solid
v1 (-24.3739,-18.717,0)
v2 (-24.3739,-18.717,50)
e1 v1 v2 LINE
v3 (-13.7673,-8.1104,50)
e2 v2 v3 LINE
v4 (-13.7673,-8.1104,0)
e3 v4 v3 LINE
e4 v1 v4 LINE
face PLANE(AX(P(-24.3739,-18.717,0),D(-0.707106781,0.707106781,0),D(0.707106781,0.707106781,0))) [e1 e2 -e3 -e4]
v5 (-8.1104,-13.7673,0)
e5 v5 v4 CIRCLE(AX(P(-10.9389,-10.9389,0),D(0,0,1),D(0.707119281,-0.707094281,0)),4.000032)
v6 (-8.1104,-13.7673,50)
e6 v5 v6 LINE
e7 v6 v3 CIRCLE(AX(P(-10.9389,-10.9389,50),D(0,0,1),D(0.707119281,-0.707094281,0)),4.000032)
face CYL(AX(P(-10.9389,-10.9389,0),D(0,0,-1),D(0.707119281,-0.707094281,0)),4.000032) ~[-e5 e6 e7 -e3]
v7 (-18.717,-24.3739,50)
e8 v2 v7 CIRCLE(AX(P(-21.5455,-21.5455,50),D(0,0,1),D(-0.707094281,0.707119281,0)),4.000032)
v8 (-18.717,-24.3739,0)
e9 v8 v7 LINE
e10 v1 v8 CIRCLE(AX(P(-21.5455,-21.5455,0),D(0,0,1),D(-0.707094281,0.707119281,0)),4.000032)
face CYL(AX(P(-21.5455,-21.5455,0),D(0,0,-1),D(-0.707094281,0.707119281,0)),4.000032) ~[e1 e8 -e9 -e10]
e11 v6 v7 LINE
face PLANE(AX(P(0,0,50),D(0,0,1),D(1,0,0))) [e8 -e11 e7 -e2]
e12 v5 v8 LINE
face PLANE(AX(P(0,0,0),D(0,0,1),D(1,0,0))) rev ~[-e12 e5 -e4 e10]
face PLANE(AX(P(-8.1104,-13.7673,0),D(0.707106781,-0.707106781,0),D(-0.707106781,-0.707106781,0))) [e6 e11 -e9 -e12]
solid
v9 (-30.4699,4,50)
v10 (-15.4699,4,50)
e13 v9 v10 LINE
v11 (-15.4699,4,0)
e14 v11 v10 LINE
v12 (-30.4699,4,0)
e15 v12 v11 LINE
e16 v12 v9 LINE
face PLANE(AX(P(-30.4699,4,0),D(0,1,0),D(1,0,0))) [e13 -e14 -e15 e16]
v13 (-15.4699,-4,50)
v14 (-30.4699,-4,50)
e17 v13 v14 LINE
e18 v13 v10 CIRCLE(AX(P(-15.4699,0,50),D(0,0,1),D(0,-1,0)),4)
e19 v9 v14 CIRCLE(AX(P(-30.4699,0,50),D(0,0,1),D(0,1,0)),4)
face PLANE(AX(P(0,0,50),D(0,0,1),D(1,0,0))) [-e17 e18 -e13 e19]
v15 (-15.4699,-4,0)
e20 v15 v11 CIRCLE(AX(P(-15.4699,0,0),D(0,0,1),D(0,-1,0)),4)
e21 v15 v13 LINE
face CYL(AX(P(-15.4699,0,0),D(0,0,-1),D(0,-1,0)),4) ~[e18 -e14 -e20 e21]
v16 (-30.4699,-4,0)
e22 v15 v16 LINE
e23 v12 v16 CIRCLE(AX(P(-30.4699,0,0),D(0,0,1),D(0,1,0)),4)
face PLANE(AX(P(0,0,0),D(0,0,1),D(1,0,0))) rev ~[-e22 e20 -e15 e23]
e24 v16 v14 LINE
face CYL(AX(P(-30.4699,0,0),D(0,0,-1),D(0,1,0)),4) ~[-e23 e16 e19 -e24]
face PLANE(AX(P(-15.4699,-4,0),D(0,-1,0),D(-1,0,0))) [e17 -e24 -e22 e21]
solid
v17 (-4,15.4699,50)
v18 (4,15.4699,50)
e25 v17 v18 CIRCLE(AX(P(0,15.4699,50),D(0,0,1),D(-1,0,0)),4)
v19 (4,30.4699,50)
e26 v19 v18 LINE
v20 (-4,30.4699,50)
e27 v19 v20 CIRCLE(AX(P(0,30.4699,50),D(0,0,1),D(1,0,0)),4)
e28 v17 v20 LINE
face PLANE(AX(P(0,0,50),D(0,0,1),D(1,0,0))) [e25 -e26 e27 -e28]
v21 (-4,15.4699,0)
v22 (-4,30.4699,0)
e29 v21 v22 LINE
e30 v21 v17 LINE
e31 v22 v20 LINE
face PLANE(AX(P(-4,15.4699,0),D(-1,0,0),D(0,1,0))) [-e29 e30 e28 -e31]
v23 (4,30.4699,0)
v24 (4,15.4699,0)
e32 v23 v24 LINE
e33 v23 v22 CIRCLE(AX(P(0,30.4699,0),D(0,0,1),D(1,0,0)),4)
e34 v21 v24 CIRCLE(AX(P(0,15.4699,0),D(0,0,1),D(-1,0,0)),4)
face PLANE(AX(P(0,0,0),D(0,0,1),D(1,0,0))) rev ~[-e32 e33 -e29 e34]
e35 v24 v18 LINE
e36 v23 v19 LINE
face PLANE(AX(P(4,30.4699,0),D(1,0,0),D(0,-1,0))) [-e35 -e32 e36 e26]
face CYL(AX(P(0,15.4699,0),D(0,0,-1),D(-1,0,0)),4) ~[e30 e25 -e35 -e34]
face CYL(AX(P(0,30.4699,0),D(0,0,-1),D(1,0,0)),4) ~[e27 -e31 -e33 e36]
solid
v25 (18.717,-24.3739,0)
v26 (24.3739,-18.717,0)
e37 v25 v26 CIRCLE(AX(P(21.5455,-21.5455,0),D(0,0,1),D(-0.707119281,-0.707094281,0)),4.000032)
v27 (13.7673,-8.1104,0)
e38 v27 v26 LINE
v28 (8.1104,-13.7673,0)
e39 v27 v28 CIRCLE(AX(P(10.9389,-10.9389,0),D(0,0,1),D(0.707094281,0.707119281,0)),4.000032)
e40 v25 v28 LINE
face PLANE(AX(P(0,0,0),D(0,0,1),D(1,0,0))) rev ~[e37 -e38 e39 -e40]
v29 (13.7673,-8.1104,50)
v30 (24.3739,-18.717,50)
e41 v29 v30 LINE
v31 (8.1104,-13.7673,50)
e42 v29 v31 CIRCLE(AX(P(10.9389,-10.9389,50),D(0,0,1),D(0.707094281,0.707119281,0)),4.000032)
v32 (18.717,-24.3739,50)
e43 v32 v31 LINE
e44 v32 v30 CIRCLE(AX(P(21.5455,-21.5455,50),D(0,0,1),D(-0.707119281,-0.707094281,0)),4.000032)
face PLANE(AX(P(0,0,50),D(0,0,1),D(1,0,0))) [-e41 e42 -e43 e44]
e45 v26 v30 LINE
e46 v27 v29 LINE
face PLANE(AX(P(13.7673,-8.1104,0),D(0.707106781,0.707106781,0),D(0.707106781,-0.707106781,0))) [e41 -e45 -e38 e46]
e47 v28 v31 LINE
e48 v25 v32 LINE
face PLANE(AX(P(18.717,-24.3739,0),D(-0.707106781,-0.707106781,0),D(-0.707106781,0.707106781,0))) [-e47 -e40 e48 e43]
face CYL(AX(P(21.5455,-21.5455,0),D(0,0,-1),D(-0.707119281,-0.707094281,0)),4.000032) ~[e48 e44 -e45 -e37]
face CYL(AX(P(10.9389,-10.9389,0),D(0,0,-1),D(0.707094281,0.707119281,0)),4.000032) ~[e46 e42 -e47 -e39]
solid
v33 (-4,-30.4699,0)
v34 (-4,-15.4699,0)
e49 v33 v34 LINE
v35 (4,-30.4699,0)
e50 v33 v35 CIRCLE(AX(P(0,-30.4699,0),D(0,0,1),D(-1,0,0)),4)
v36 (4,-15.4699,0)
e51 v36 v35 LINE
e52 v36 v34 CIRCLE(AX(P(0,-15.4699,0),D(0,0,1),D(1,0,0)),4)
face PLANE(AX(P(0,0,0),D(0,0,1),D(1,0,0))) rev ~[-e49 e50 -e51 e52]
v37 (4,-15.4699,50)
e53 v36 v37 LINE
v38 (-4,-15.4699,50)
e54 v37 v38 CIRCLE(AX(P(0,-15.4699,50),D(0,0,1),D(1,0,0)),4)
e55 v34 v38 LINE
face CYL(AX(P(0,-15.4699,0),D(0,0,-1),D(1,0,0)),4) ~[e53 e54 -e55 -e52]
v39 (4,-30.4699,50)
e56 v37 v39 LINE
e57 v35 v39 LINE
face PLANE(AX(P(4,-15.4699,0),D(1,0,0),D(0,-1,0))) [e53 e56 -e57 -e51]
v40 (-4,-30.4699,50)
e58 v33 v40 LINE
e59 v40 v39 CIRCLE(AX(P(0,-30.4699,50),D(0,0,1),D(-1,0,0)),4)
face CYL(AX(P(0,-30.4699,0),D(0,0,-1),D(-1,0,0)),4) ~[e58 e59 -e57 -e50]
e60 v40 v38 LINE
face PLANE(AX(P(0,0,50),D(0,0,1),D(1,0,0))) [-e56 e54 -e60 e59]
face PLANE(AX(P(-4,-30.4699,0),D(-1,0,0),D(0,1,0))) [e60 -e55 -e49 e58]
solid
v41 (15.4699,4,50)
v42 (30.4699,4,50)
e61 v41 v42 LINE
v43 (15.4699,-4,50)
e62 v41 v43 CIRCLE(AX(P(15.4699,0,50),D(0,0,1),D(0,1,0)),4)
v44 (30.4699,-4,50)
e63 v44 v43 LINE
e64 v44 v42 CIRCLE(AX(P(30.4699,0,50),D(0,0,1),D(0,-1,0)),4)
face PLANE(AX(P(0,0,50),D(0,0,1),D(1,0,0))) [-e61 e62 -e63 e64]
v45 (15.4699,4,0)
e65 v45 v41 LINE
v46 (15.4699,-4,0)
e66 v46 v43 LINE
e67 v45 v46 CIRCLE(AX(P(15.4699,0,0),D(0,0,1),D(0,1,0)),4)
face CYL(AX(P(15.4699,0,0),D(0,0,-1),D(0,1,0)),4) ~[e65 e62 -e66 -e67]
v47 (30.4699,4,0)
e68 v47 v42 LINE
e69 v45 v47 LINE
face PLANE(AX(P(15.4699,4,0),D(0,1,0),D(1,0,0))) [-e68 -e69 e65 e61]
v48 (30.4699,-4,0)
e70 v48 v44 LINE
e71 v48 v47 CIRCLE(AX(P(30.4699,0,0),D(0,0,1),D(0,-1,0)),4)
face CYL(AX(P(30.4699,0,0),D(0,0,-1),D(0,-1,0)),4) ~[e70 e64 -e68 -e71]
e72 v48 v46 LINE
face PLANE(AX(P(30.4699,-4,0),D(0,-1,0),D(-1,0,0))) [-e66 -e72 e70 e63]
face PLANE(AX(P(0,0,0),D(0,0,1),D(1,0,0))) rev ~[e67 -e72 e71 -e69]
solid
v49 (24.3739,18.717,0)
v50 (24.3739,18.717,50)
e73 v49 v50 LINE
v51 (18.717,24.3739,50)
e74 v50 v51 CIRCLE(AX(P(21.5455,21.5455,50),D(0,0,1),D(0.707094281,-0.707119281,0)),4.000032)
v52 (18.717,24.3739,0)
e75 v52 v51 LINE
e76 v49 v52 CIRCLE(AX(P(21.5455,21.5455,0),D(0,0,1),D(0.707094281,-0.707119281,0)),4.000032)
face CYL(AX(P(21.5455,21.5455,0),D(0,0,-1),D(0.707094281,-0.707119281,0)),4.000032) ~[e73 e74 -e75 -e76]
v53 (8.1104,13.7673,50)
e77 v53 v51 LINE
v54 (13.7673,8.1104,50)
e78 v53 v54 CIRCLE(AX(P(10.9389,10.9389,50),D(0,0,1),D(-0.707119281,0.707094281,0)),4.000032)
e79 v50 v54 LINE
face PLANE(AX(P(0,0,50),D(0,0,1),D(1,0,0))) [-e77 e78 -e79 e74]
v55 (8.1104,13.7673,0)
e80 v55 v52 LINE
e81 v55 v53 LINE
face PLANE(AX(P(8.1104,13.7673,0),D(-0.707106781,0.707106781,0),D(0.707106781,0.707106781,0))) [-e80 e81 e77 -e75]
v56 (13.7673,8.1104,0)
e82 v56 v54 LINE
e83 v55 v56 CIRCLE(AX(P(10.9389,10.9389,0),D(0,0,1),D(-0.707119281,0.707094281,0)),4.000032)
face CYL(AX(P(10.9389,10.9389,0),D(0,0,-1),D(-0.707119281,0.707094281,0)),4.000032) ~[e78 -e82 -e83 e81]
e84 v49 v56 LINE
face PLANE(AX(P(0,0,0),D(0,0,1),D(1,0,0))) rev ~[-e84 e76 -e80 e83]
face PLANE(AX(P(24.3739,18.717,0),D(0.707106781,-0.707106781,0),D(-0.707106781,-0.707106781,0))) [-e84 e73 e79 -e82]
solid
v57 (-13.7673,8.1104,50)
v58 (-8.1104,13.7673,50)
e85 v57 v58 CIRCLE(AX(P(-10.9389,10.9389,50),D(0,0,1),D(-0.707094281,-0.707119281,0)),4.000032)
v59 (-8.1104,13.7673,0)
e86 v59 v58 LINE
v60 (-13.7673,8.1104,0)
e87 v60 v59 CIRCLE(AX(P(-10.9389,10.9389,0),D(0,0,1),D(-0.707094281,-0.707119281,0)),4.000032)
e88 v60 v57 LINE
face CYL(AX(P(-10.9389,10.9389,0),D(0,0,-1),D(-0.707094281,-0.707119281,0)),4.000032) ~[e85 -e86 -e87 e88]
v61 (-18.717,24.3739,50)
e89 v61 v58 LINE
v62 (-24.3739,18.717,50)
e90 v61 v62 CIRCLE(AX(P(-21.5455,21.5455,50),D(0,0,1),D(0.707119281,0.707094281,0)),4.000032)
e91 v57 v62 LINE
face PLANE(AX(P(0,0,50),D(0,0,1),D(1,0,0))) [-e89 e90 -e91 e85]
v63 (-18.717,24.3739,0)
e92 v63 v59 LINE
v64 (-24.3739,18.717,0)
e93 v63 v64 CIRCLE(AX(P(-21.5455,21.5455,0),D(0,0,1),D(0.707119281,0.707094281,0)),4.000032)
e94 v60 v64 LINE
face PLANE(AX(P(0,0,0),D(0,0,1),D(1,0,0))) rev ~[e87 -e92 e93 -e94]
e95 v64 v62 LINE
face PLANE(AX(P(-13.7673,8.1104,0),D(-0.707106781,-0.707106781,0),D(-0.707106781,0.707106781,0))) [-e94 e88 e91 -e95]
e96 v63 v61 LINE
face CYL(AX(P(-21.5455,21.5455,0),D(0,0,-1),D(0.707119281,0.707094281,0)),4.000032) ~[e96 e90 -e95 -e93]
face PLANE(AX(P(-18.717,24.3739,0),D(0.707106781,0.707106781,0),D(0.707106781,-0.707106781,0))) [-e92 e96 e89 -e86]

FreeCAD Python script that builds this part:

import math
import FreeCAD as App
import Part
import Sketcher
from FreeCAD import Vector
Q = App.Units.Quantity

doc = App.newDocument("Part")
body = doc.addObject("PartDesign::Body", "Body")
body.AllowCompound = True

# Sketch on XY plane
sketch1 = doc.addObject("Sketcher::SketchObject", "Sketch")
body.addObject(sketch1)
sketch1.AttachmentSupport = (doc.XY_Plane, [""])
sketch1.MapMode = "FlatFace"
sketch1.addGeometry(Part.LineSegment(Vector(4, 15.5, 0), Vector(4, 30.5, 0)), False)
sketch1.addGeometry(Part.ArcOfCircle(Part.Circle(Vector(0, 30.5, 0), Vector(0, 0, 1), 4), math.radians(0), math.radians(180)), False)
sketch1.addGeometry(Part.LineSegment(Vector(-4, 30.5, 0), Vector(-4, 15.5, 0)), False)
sketch1.addGeometry(Part.ArcOfCircle(Part.Circle(Vector(0, 15.5, 0), Vector(0, 0, 1), 4), math.radians(180), math.radians(360)), False)
sketch1.addGeometry(Part.LineSegment(Vector(-8.1, 13.8, 0), Vector(-18.7, 24.4, 0)), False)
sketch1.addGeometry(Part.ArcOfCircle(Part.Circle(Vector(-21.5, 21.5, 0), Vector(0, 0, 1), 4), math.radians(45), math.radians(225)), False)
sketch1.addGeometry(Part.LineSegment(Vector(-24.4, 18.7, 0), Vector(-13.8, 8.1, 0)), False)
sketch1.addGeometry(Part.ArcOfCircle(Part.Circle(Vector(-10.9, 10.9, 0), Vector(0, 0, 1), 4), math.radians(-135), math.radians(45)), False)
sketch1.addGeometry(Part.LineSegment(Vector(-15.5, 4, 0), Vector(-30.5, 4, 0)), False)
sketch1.addGeometry(Part.ArcOfCircle(Part.Circle(Vector(-30.5, 0, 0), Vector(0, 0, 1), 4), math.radians(90), math.radians(270)), False)
sketch1.addGeometry(Part.LineSegment(Vector(-30.5, -4, 0), Vector(-15.5, -4, 0)), False)
sketch1.addGeometry(Part.ArcOfCircle(Part.Circle(Vector(-15.5, 0, 0), Vector(0, 0, 1), 4), math.radians(-90), math.radians(90)), False)
sketch1.addGeometry(Part.LineSegment(Vector(-13.8, -8.1, 0), Vector(-24.4, -18.7, 0)), False)
sketch1.addGeometry(Part.ArcOfCircle(Part.Circle(Vector(-21.5, -21.5, 0), Vector(0, 0, 1), 4), math.radians(135), math.radians(315)), False)
sketch1.addGeometry(Part.LineSegment(Vector(-18.7, -24.4, 0), Vector(-8.1, -13.8, 0)), False)
sketch1.addGeometry(Part.ArcOfCircle(Part.Circle(Vector(-10.9, -10.9, 0), Vector(0, 0, 1), 4), math.radians(-45), math.radians(135)), False)
sketch1.addGeometry(Part.LineSegment(Vector(-4, -15.5, 0), Vector(-4, -30.5, 0)), False)
sketch1.addGeometry(Part.ArcOfCircle(Part.Circle(Vector(0, -30.5, 0), Vector(0, 0, 1), 4), math.radians(180), math.radians(360)), False)
sketch1.addGeometry(Part.LineSegment(Vector(4, -30.5, 0), Vector(4, -15.5, 0)), False)
sketch1.addGeometry(Part.ArcOfCircle(Part.Circle(Vector(0, -15.5, 0), Vector(0, 0, 1), 4), math.radians(0), math.radians(180)), False)
sketch1.addGeometry(Part.LineSegment(Vector(8.1, -13.8, 0), Vector(18.7, -24.4, 0)), False)
sketch1.addGeometry(Part.ArcOfCircle(Part.Circle(Vector(21.5, -21.5, 0), Vector(0, 0, 1), 4), math.radians(-135), math.radians(45)), False)
sketch1.addGeometry(Part.LineSegment(Vector(24.4, -18.7, 0), Vector(13.8, -8.1, 0)), False)
sketch1.addGeometry(Part.ArcOfCircle(Part.Circle(Vector(10.9, -10.9, 0), Vector(0, 0, 1), 4), math.radians(45), math.radians(225)), False)
sketch1.addGeometry(Part.LineSegment(Vector(15.5, -4, 0), Vector(30.5, -4, 0)), False)
sketch1.addGeometry(Part.ArcOfCircle(Part.Circle(Vector(30.5, 0, 0), Vector(0, 0, 1), 4), math.radians(-90), math.radians(90)), False)
sketch1.addGeometry(Part.LineSegment(Vector(30.5, 4, 0), Vector(15.5, 4, 0)), False)
sketch1.addGeometry(Part.ArcOfCircle(Part.Circle(Vector(15.5, 0, 0), Vector(0, 0, 1), 4), math.radians(90), math.radians(270)), False)
sketch1.addGeometry(Part.LineSegment(Vector(13.8, 8.1, 0), Vector(24.4, 18.7, 0)), False)
sketch1.addGeometry(Part.ArcOfCircle(Part.Circle(Vector(21.5, 21.5, 0), Vector(0, 0, 1), 4), math.radians(-45), math.radians(135)), False)
sketch1.addGeometry(Part.LineSegment(Vector(18.7, 24.4, 0), Vector(8.1, 13.8, 0)), False)
sketch1.addGeometry(Part.ArcOfCircle(Part.Circle(Vector(10.9, 10.9, 0), Vector(0, 0, 1), 4), math.radians(135), math.radians(315)), False)
sketch1.addConstraint(Sketcher.Constraint("Tangent", 0, 2, 1, 1))
sketch1.addConstraint(Sketcher.Constraint("Tangent", 1, 2, 2, 1))
sketch1.addConstraint(Sketcher.Constraint("Tangent", 2, 2, 3, 1))
sketch1.addConstraint(Sketcher.Constraint("Tangent", 3, 2, 0, 1))
sketch1.addConstraint(Sketcher.Constraint("Tangent", 4, 2, 5, 1))
sketch1.addConstraint(Sketcher.Constraint("Tangent", 5, 2, 6, 1))
sketch1.addConstraint(Sketcher.Constraint("Tangent", 6, 2, 7, 1))
sketch1.addConstraint(Sketcher.Constraint("Tangent", 7, 2, 4, 1))
sketch1.addConstraint(Sketcher.Constraint("Tangent", 8, 2, 9, 1))
sketch1.addConstraint(Sketcher.Constraint("Tangent", 9, 2, 10, 1))
sketch1.addConstraint(Sketcher.Constraint("Tangent", 10, 2, 11, 1))
sketch1.addConstraint(Sketcher.Constraint("Tangent", 11, 2, 8, 1))
sketch1.addConstraint(Sketcher.Constraint("Tangent", 12, 2, 13, 1))
sketch1.addConstraint(Sketcher.Constraint("Tangent", 13, 2, 14, 1))
sketch1.addConstraint(Sketcher.Constraint("Tangent", 14, 2, 15, 1))
sketch1.addConstraint(Sketcher.Constraint("Tangent", 15, 2, 12, 1))
sketch1.addConstraint(Sketcher.Constraint("Tangent", 16, 2, 17, 1))
sketch1.addConstraint(Sketcher.Constraint("Tangent", 17, 2, 18, 1))
sketch1.addConstraint(Sketcher.Constraint("Tangent", 18, 2, 19, 1))
sketch1.addConstraint(Sketcher.Constraint("Tangent", 19, 2, 16, 1))
sketch1.addConstraint(Sketcher.Constraint("Tangent", 20, 2, 21, 1))
sketch1.addConstraint(Sketcher.Constraint("Tangent", 21, 2, 22, 1))
sketch1.addConstraint(Sketcher.Constraint("Tangent", 22, 2, 23, 1))
sketch1.addConstraint(Sketcher.Constraint("Tangent", 23, 2, 20, 1))
sketch1.addConstraint(Sketcher.Constraint("Tangent", 24, 2, 25, 1))
sketch1.addConstraint(Sketcher.Constraint("Tangent", 25, 2, 26, 1))
sketch1.addConstraint(Sketcher.Constraint("Tangent", 26, 2, 27, 1))
sketch1.addConstraint(Sketcher.Constraint("Tangent", 27, 2, 24, 1))
sketch1.addConstraint(Sketcher.Constraint("Tangent", 28, 2, 29, 1))
sketch1.addConstraint(Sketcher.Constraint("Tangent", 29, 2, 30, 1))
sketch1.addConstraint(Sketcher.Constraint("Tangent", 30, 2, 31, 1))
sketch1.addConstraint(Sketcher.Constraint("Tangent", 31, 2, 28, 1))
sketch1.addConstraint(Sketcher.Constraint("Vertical", 0))
sketch1.addConstraint(Sketcher.Constraint("Vertical", 2))
sketch1.addConstraint(Sketcher.Constraint("Horizontal", 8))
sketch1.addConstraint(Sketcher.Constraint("Horizontal", 10))
sketch1.addConstraint(Sketcher.Constraint("Vertical", 16))
sketch1.addConstraint(Sketcher.Constraint("Vertical", 18))
sketch1.addConstraint(Sketcher.Constraint("Horizontal", 24))
sketch1.addConstraint(Sketcher.Constraint("Horizontal", 26))
sketch1.addConstraint(Sketcher.Constraint("Equal", 3, 5))
sketch1.addConstraint(Sketcher.Constraint("Equal", 5, 7))
sketch1.addConstraint(Sketcher.Constraint("Equal", 7, 9))
sketch1.addConstraint(Sketcher.Constraint("Equal", 11, 13))
sketch1.addConstraint(Sketcher.Constraint("Equal", 13, 15))
sketch1.addConstraint(Sketcher.Constraint("Equal", 15, 17))
sketch1.addConstraint(Sketcher.Constraint("Equal", 19, 21))
sketch1.addConstraint(Sketcher.Constraint("Equal", 21, 23))
sketch1.addConstraint(Sketcher.Constraint("Equal", 23, 25))
sketch1.addConstraint(Sketcher.Constraint("Equal", 27, 29))
sketch1.addConstraint(Sketcher.Constraint("Equal", 29, 31))
sketch1.addConstraint(Sketcher.Constraint("Symmetric", 1, 3, 17, 3, -1, 1))
sketch1.addConstraint(Sketcher.Constraint("Symmetric", 5, 3, 21, 3, -1, 1))
sketch1.addConstraint(Sketcher.Constraint("Symmetric", 7, 3, 23, 3, -1, 1))
sketch1.addConstraint(Sketcher.Constraint("Symmetric", 9, 3, 25, 3, -1, 1))
sketch1.addConstraint(Sketcher.Constraint("Symmetric", 13, 3, 29, 3, -1, 1))
sketch1.addConstraint(Sketcher.Constraint("Symmetric", 15, 3, 31, 3, -1, 1))
sketch1.addConstraint(Sketcher.Constraint("Symmetric", 13, 3, 21, 3, -2))
sketch1.addConstraint(Sketcher.Constraint("Symmetric", 15, 3, 23, 3, -2))
sketch1.addConstraint(Sketcher.Constraint("Symmetric", 11, 3, 27, 3, -2))
sketch1.addConstraint(Sketcher.Constraint("Symmetric", 3, 3, 19, 3, -1))
sketch1.addConstraint(Sketcher.Constraint("Perpendicular", 6, 12))
sketch1.addConstraint(Sketcher.Constraint("Equal", 26, 0))
sketch1.addConstraint(Sketcher.Constraint("Radius", 1, Q("4 mm")))
sketch1.addConstraint(Sketcher.Constraint("DistanceX", 8, 2, 8, 1, Q("15 mm")))
sketch1.addConstraint(Sketcher.Constraint("Distance", 4, Q("15 mm")))
sketch1.addConstraint(Sketcher.Constraint("DistanceY", -1, 1, 1, 3, Q("30.47 mm")))
sketch1.addConstraint(Sketcher.Constraint("DistanceX", 9, 3, -1, 1, Q("30.47 mm")))
sketch1.addConstraint(Sketcher.Constraint("DistanceX", 7, 3, -1, 1, Q("10.939 mm")))
sketch1.addConstraint(Sketcher.Constraint("DistanceY", -1, 1, 7, 3, Q("10.939 mm")))
pad1 = doc.addObject("PartDesign::Pad", "Pad")
body.addObject(pad1)
pad1.Profile = sketch1
pad1.Length = 50

doc.recompute()
